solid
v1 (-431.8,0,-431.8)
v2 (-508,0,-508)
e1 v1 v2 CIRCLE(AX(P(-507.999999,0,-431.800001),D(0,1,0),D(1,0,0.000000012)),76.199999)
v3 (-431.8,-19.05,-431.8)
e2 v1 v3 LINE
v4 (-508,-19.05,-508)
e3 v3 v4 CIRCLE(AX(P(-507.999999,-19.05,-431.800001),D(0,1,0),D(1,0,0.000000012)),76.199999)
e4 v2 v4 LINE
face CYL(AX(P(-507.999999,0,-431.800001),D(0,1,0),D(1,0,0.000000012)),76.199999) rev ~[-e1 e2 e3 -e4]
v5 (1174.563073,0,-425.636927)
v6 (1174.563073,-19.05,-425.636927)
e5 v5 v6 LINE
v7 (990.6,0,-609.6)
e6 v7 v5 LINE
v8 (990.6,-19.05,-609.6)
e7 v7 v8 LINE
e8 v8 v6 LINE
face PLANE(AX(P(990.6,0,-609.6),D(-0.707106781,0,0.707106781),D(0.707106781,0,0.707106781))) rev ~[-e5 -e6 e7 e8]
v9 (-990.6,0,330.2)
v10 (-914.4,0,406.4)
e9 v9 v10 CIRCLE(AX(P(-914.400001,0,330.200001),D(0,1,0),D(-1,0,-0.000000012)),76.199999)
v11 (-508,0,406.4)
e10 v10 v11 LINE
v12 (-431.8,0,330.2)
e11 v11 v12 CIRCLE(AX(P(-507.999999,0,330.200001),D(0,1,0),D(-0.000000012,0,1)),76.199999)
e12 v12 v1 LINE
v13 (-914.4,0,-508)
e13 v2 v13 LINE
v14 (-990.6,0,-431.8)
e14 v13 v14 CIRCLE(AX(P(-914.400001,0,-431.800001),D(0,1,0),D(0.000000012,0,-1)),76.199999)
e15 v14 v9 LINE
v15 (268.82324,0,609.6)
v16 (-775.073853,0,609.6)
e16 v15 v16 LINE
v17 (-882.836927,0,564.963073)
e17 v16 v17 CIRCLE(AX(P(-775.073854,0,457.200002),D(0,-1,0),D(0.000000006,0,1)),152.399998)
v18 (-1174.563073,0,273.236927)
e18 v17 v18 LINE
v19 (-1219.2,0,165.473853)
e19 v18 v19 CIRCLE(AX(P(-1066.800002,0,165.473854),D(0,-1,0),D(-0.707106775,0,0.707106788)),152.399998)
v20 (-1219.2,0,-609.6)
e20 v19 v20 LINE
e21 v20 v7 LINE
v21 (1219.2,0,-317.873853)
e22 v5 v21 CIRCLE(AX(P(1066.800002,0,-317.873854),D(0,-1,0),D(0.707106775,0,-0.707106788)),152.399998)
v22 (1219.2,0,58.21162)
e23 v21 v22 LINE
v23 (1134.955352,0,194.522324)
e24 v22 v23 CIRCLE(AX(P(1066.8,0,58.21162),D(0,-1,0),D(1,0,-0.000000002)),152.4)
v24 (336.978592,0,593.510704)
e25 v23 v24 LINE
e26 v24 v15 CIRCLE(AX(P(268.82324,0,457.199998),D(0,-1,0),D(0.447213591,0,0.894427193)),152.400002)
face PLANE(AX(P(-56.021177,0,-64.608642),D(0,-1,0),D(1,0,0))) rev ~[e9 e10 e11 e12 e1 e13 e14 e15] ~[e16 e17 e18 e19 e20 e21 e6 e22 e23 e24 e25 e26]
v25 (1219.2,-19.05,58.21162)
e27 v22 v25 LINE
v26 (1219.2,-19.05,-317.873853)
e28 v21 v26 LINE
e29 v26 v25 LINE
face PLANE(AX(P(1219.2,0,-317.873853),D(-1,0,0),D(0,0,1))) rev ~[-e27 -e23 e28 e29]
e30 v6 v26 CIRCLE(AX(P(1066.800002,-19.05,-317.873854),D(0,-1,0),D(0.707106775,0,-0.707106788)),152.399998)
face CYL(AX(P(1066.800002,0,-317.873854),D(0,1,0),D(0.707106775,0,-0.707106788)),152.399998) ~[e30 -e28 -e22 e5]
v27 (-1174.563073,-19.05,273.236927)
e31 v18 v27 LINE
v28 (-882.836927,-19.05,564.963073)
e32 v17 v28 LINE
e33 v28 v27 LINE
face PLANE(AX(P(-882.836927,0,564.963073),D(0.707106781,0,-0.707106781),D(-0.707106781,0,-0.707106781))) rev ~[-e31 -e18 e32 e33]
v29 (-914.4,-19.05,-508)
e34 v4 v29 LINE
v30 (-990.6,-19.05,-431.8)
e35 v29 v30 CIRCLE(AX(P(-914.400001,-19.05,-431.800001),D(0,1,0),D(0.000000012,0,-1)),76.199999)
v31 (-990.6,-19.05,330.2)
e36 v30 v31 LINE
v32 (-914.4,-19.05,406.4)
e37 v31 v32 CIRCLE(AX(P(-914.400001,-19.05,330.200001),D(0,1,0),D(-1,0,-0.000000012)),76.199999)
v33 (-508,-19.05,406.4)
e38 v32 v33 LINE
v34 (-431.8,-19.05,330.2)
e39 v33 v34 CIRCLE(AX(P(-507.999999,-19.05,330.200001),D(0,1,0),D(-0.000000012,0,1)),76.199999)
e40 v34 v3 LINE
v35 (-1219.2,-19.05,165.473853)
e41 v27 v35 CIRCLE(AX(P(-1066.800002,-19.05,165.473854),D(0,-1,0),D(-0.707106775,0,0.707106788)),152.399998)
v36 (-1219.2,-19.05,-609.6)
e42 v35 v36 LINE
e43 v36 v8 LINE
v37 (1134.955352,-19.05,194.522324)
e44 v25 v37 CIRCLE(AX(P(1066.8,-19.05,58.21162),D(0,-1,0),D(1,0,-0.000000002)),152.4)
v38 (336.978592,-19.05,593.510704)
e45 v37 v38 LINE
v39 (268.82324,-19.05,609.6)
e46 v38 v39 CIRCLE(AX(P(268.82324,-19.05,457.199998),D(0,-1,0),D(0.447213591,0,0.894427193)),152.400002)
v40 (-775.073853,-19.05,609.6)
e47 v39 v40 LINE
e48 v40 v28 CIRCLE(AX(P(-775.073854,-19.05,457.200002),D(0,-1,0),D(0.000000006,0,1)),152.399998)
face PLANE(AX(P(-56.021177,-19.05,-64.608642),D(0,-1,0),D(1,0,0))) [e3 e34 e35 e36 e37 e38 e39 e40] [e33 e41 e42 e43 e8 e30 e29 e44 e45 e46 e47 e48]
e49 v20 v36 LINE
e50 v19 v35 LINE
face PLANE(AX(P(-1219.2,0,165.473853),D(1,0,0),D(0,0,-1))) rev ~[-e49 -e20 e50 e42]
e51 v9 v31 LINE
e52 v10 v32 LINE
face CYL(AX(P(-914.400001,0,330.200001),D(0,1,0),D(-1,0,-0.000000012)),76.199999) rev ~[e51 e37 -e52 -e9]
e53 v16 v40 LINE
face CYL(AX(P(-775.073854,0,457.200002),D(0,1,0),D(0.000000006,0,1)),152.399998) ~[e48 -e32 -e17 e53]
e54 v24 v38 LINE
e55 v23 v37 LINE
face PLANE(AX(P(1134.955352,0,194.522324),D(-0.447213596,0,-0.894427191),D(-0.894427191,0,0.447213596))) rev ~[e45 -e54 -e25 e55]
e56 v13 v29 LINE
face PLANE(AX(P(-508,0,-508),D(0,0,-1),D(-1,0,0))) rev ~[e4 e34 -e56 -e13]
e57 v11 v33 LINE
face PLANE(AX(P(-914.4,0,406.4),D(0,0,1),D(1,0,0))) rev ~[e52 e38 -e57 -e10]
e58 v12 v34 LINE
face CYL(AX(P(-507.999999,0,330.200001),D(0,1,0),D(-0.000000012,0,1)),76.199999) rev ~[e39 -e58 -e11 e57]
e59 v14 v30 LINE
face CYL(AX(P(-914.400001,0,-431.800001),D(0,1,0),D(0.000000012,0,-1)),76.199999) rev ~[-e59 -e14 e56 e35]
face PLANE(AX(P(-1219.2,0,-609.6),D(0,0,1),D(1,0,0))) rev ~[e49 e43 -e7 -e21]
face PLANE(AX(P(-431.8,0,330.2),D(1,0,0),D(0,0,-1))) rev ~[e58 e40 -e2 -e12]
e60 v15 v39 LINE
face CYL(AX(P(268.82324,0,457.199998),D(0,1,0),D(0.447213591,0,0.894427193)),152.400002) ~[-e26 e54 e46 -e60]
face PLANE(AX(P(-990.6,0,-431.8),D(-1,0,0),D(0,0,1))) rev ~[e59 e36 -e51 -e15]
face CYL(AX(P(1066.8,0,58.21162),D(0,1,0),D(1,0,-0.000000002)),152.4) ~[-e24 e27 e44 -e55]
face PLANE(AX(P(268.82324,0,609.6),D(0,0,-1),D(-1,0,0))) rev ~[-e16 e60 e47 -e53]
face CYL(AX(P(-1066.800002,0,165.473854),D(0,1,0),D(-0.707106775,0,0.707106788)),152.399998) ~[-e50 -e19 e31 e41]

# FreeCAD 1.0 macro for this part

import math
import FreeCAD as App
import Part
import Sketcher

V = App.Vector
Q = App.Units.Quantity

doc = App.newDocument("Part")
body = doc.addObject("PartDesign::Body", "Body")

# Sketch on XZ plane
sketch1 = body.newObject("Sketcher::SketchObject", "Sketch")
sketch1.AttachmentSupport = (doc.getObject("XZ_Plane"), [""])
sketch1.MapMode = "FlatFace"
sketch1.addGeometry(Part.ArcOfCircle(Part.Circle(V(268.82324, 457.199998, 0), V(0, 0, 1), 152.400002), math.radians(63.434949), math.radians(90)), False)
sketch1.addGeometry(Part.LineSegment(V(268.82324, 609.6, 0), V(-775.073853, 609.6, 0)), False)
sketch1.addGeometry(Part.ArcOfCircle(Part.Circle(V(-775.073854, 457.200002, 0), V(0, 0, 1), 152.399998), math.radians(90), math.radians(135.000001)), False)
sketch1.addGeometry(Part.LineSegment(V(-882.836927, 564.963073, 0), V(-1174.563073, 273.236927, 0)), False)
sketch1.addGeometry(Part.ArcOfCircle(Part.Circle(V(-1066.800002, 165.473854, 0), V(0, 0, 1), 152.399998), math.radians(134.999999), math.radians(180)), False)
sketch1.addGeometry(Part.LineSegment(V(-1219.2, 165.473853, 0), V(-1219.2, -609.6, 0)), False)
sketch1.addGeometry(Part.LineSegment(V(-1219.2, -609.6, 0), V(990.6, -609.6, 0)), False)
sketch1.addGeometry(Part.LineSegment(V(990.6, -609.6, 0), V(1174.563073, -425.636927, 0)), False)
sketch1.addGeometry(Part.ArcOfCircle(Part.Circle(V(1066.800002, -317.873854, 0), V(0, 0, 1), 152.399998), math.radians(-45.000001), math.radians(0)), False)
sketch1.addGeometry(Part.LineSegment(V(1219.2, -317.873853, 0), V(1219.2, 58.21162, 0)), False)
sketch1.addGeometry(Part.ArcOfCircle(Part.Circle(V(1066.8, 58.21162, 0), V(0, 0, 1), 152.4), math.radians(0), math.radians(63.434949)), False)
sketch1.addGeometry(Part.LineSegment(V(1134.955352, 194.522324, 0), V(336.978592, 593.510704, 0)), False)
sketch1.addGeometry(Part.LineSegment(V(-990.6, -431.8, 0), V(-990.6, 330.2, 0)), False)
sketch1.addGeometry(Part.ArcOfCircle(Part.Circle(V(-914.400001, 330.200001, 0), V(0, 0, 1), 76.199999), math.radians(89.999999), math.radians(180.000001)), False)
sketch1.addGeometry(Part.LineSegment(V(-914.4, 406.4, 0), V(-508, 406.4, 0)), False)
sketch1.addGeometry(Part.ArcOfCircle(Part.Circle(V(-507.999999, 330.200001, 0), V(0, 0, 1), 76.199999), math.radians(-0.000001), math.radians(90.000001)), False)
sketch1.addGeometry(Part.LineSegment(V(-431.8, 330.2, 0), V(-431.8, -431.8, 0)), False)
sketch1.addGeometry(Part.ArcOfCircle(Part.Circle(V(-507.999999, -431.800001, 0), V(0, 0, 1), 76.199999), math.radians(-90.000001), math.radians(0.000001)), False)
sketch1.addGeometry(Part.LineSegment(V(-508, -508, 0), V(-914.4, -508, 0)), False)
sketch1.addGeometry(Part.ArcOfCircle(Part.Circle(V(-914.400001, -431.800001, 0), V(0, 0, 1), 76.199999), math.radians(179.999999), math.radians(270.000001)), False)
sketch1.addConstraint(Sketcher.Constraint("Tangent", 0, 2, 1, 1))
sketch1.addConstraint(Sketcher.Constraint("Tangent", 1, 2, 2, 1))
sketch1.addConstraint(Sketcher.Constraint("Tangent", 2, 2, 3, 1))
sketch1.addConstraint(Sketcher.Constraint("Tangent", 3, 2, 4, 1))
sketch1.addConstraint(Sketcher.Constraint("Tangent", 4, 2, 5, 1))
sketch1.addConstraint(Sketcher.Constraint("Coincident", 5, 2, 6, 1))
sketch1.addConstraint(Sketcher.Constraint("Coincident", 6, 2, 7, 1))
sketch1.addConstraint(Sketcher.Constraint("Tangent", 7, 2, 8, 1))
sketch1.addConstraint(Sketcher.Constraint("Tangent", 8, 2, 9, 1))
sketch1.addConstraint(Sketcher.Constraint("Tangent", 9, 2, 10, 1))
sketch1.addConstraint(Sketcher.Constraint("Tangent", 10, 2, 11, 1))
sketch1.addConstraint(Sketcher.Constraint("Tangent", 11, 2, 0, 1))
sketch1.addConstraint(Sketcher.Constraint("Tangent", 12, 2, 13, 2))
sketch1.addConstraint(Sketcher.Constraint("Tangent", 13, 1, 14, 1))
sketch1.addConstraint(Sketcher.Constraint("Tangent", 14, 2, 15, 2))
sketch1.addConstraint(Sketcher.Constraint("Tangent", 15, 1, 16, 1))
sketch1.addConstraint(Sketcher.Constraint("Tangent", 16, 2, 17, 2))
sketch1.addConstraint(Sketcher.Constraint("Tangent", 17, 1, 18, 1))
sketch1.addConstraint(Sketcher.Constraint("Tangent", 18, 2, 19, 2))
sketch1.addConstraint(Sketcher.Constraint("Tangent", 19, 1, 12, 1))
sketch1.addConstraint(Sketcher.Constraint("Horizontal", 1))
sketch1.addConstraint(Sketcher.Constraint("Vertical", 5))
sketch1.addConstraint(Sketcher.Constraint("Horizontal", 6))
sketch1.addConstraint(Sketcher.Constraint("Vertical", 9))
sketch1.addConstraint(Sketcher.Constraint("Vertical", 12))
sketch1.addConstraint(Sketcher.Constraint("Horizontal", 14))
sketch1.addConstraint(Sketcher.Constraint("Vertical", 16))
sketch1.addConstraint(Sketcher.Constraint("Horizontal", 18))
sketch1.addConstraint(Sketcher.Constraint("Equal", 2, 4))
sketch1.addConstraint(Sketcher.Constraint("Equal", 4, 8))
sketch1.addConstraint(Sketcher.Constraint("Equal", 8, 10))
sketch1.addConstraint(Sketcher.Constraint("Equal", 13, 15))
sketch1.addConstraint(Sketcher.Constraint("Equal", 15, 17))
sketch1.addConstraint(Sketcher.Constraint("Equal", 17, 19))
sketch1.addConstraint(Sketcher.Constraint("Parallel", 3, 7))
sketch1.addConstraint(Sketcher.Constraint("Radius", 0, Q("6.0000001 in")))
sketch1.addConstraint(Sketcher.Constraint("Radius", 2, Q("5.9999999 in")))
sketch1.addConstraint(Sketcher.Constraint("Radius", 13, Q("3 in")))
sketch1.addConstraint(Sketcher.Constraint("DistanceX", 6, 1, 6, 2, Q("87 in")))
sketch1.addConstraint(Sketcher.Constraint("DistanceX", 14, 1, 14, 2, Q("16 in")))
sketch1.addConstraint(Sketcher.Constraint("DistanceY", 12, 1, 12, 2, Q("30 in")))
sketch1.addConstraint(Sketcher.Constraint("DistanceY", -1, 1, 0, 3, Q("17.9999999 in")))
sketch1.addConstraint(Sketcher.Constraint("DistanceX", 4, 3, -1, 1, Q("42.0000001 in")))
sketch1.addConstraint(Sketcher.Constraint("DistanceX", -1, 1, 8, 3, Q("42.0000001 in")))
sketch1.addConstraint(Sketcher.Constraint("DistanceX", 13, 3, -1, 1, Q("36 in")))
sketch1.addConstraint(Sketcher.Constraint("DistanceY", -1, 1, 13, 3, Q("13 in")))
sketch1.addConstraint(Sketcher.Constraint("DistanceY", 5, 2, -1, 1, Q("24 in")))
sketch1.addConstraint(Sketcher.Constraint("Angle", 3, Q("-135 deg")))
sketch1.addConstraint(Sketcher.Constraint("Distance", 11, 892.16514))
sketch1.addConstraint(Sketcher.Constraint("DistanceX", 1, 2, 1, 1, 1043.897093))
sketch1.addConstraint(Sketcher.Constraint("DistanceY", 5, 2, 5, 1, 775.073853))
pad1 = body.newObject("PartDesign::Pad", "Pad")
pad1.Profile = sketch1
pad1.Length = Q("0.75 in")

doc.recompute()
